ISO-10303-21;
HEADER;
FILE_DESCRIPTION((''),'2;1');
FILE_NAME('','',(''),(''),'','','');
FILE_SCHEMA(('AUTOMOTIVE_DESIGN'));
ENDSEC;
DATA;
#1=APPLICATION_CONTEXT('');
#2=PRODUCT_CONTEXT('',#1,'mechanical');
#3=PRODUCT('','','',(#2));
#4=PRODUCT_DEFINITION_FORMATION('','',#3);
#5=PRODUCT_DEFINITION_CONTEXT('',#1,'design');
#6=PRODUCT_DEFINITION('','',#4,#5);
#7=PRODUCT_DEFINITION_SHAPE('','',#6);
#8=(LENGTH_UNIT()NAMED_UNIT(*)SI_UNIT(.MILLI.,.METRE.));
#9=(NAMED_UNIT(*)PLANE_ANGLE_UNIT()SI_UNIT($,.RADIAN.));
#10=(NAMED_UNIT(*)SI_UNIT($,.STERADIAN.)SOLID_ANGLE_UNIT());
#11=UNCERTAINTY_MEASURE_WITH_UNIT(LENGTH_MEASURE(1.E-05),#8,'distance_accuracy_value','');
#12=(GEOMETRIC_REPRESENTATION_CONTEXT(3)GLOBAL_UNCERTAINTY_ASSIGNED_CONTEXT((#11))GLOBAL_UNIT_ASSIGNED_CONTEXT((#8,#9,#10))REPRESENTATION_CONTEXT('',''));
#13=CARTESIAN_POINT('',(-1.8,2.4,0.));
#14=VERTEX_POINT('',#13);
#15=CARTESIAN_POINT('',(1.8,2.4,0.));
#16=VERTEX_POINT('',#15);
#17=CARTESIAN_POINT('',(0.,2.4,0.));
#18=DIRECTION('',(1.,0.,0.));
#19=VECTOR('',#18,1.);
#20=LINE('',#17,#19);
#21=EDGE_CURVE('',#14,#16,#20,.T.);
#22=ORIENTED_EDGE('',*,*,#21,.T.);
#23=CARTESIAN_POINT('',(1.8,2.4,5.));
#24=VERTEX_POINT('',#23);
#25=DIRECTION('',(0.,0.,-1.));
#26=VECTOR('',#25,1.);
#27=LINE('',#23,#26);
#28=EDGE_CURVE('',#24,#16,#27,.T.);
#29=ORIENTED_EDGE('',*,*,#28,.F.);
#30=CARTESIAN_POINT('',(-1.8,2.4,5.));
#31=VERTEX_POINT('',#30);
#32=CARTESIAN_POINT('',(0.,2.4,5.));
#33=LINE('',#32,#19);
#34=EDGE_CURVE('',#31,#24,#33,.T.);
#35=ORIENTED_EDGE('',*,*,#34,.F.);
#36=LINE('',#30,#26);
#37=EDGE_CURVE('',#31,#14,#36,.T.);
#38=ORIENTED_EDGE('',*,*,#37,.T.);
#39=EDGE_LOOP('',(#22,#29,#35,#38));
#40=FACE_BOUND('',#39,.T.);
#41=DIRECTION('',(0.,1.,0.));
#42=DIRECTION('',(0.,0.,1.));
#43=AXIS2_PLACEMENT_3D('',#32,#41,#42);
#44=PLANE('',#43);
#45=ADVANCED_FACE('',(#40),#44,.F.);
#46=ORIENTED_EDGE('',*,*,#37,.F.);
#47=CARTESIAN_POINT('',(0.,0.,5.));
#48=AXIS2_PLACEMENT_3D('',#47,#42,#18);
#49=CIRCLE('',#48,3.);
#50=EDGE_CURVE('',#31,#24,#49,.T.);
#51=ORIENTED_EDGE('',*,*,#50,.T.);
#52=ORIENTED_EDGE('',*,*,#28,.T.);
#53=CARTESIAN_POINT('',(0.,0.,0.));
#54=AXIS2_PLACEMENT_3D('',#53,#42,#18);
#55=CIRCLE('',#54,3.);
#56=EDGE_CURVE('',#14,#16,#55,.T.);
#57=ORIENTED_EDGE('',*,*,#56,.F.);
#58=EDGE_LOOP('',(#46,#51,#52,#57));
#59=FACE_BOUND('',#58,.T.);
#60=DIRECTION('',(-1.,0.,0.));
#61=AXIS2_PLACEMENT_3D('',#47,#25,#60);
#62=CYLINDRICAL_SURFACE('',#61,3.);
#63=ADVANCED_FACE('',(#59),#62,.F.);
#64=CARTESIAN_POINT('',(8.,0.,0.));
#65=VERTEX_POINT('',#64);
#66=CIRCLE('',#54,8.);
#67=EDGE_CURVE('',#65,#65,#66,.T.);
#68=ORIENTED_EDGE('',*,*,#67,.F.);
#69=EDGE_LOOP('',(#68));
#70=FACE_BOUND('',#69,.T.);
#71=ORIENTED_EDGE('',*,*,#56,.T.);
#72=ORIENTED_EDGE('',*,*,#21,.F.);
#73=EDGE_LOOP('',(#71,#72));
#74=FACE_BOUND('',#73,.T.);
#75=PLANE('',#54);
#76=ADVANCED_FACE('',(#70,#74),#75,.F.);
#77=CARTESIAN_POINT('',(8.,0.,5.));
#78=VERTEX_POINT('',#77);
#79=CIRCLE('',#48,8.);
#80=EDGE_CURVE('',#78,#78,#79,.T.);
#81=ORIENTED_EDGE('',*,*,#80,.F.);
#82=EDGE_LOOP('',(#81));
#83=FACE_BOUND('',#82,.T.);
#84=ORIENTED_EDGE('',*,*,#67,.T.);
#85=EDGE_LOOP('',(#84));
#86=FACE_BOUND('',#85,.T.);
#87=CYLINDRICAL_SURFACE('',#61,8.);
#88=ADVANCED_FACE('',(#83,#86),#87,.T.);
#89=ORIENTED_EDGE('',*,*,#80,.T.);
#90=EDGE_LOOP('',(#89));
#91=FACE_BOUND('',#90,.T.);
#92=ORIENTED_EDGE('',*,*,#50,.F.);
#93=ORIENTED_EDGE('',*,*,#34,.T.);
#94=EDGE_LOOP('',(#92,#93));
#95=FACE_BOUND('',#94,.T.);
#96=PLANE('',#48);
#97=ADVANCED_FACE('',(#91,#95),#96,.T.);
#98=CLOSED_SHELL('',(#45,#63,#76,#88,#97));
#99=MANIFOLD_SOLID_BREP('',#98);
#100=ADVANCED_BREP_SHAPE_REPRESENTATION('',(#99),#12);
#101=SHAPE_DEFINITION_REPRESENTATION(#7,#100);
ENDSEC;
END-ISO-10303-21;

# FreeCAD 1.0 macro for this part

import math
import FreeCAD as App
import Part
import Sketcher

V = App.Vector
Q = App.Units.Quantity

doc = App.newDocument("Part")
params = doc.addObject("Spreadsheet::Sheet", "Params")
for row, (alias, value) in enumerate([
    ("sketch1_diameter", "16 mm"),
    ("sketch1_radius", "3 mm"),
    ("sketch1_width", "3.6 mm"),
    ("pad1_length", "5 mm"),
], start=1):
    params.set(f"A{row}", alias)
    params.set(f"B{row}", "=" + value)
    params.setAlias(f"B{row}", alias)

body = doc.addObject("PartDesign::Body", "Body")

# Sketch on XY plane
sketch1 = doc.addObject("Sketcher::SketchObject", "Sketch")
body.addObject(sketch1)
sketch1.AttachmentSupport = (doc.XY_Plane, [""])
sketch1.MapMode = "FlatFace"
sketch1.addGeometry(Part.Circle(V(0, 0, 0), V(0, 0, 1), 8), False)
sketch1.addGeometry(Part.ArcOfCircle(Part.Circle(V(0, 0, 0), V(0, 0, 1), 3), math.radians(127), math.radians(413)), False)
sketch1.addGeometry(Part.LineSegment(V(-1.8, 2.4, 0), V(1.8, 2.4, 0)), False)
sketch1.addConstraint(Sketcher.Constraint("Coincident", 1, 1, 2, 1))
sketch1.addConstraint(Sketcher.Constraint("Coincident", 2, 2, 1, 2))
sketch1.addConstraint(Sketcher.Constraint("Horizontal", 2))
sketch1.addConstraint(Sketcher.Constraint("Coincident", 0, 3, -1, 1))
sketch1.addConstraint(Sketcher.Constraint("Coincident", 1, 3, -1, 1))
sketch1.addConstraint(Sketcher.Constraint("Diameter", 0, Q("16 mm")))
sketch1.addConstraint(Sketcher.Constraint("Radius", 1, Q("3 mm")))
sketch1.addConstraint(Sketcher.Constraint("DistanceX", 2, 1, 2, 2, Q("3.6 mm")))
sketch1.setExpression("Constraints[5]", "Params.sketch1_diameter")
sketch1.setExpression("Constraints[6]", "Params.sketch1_radius")
sketch1.setExpression("Constraints[7]", "Params.sketch1_width")
pad1 = doc.addObject("PartDesign::Pad", "Pad")
body.addObject(pad1)
pad1.Profile = sketch1
pad1.setExpression("Length", "Params.pad1_length")

doc.recompute()
